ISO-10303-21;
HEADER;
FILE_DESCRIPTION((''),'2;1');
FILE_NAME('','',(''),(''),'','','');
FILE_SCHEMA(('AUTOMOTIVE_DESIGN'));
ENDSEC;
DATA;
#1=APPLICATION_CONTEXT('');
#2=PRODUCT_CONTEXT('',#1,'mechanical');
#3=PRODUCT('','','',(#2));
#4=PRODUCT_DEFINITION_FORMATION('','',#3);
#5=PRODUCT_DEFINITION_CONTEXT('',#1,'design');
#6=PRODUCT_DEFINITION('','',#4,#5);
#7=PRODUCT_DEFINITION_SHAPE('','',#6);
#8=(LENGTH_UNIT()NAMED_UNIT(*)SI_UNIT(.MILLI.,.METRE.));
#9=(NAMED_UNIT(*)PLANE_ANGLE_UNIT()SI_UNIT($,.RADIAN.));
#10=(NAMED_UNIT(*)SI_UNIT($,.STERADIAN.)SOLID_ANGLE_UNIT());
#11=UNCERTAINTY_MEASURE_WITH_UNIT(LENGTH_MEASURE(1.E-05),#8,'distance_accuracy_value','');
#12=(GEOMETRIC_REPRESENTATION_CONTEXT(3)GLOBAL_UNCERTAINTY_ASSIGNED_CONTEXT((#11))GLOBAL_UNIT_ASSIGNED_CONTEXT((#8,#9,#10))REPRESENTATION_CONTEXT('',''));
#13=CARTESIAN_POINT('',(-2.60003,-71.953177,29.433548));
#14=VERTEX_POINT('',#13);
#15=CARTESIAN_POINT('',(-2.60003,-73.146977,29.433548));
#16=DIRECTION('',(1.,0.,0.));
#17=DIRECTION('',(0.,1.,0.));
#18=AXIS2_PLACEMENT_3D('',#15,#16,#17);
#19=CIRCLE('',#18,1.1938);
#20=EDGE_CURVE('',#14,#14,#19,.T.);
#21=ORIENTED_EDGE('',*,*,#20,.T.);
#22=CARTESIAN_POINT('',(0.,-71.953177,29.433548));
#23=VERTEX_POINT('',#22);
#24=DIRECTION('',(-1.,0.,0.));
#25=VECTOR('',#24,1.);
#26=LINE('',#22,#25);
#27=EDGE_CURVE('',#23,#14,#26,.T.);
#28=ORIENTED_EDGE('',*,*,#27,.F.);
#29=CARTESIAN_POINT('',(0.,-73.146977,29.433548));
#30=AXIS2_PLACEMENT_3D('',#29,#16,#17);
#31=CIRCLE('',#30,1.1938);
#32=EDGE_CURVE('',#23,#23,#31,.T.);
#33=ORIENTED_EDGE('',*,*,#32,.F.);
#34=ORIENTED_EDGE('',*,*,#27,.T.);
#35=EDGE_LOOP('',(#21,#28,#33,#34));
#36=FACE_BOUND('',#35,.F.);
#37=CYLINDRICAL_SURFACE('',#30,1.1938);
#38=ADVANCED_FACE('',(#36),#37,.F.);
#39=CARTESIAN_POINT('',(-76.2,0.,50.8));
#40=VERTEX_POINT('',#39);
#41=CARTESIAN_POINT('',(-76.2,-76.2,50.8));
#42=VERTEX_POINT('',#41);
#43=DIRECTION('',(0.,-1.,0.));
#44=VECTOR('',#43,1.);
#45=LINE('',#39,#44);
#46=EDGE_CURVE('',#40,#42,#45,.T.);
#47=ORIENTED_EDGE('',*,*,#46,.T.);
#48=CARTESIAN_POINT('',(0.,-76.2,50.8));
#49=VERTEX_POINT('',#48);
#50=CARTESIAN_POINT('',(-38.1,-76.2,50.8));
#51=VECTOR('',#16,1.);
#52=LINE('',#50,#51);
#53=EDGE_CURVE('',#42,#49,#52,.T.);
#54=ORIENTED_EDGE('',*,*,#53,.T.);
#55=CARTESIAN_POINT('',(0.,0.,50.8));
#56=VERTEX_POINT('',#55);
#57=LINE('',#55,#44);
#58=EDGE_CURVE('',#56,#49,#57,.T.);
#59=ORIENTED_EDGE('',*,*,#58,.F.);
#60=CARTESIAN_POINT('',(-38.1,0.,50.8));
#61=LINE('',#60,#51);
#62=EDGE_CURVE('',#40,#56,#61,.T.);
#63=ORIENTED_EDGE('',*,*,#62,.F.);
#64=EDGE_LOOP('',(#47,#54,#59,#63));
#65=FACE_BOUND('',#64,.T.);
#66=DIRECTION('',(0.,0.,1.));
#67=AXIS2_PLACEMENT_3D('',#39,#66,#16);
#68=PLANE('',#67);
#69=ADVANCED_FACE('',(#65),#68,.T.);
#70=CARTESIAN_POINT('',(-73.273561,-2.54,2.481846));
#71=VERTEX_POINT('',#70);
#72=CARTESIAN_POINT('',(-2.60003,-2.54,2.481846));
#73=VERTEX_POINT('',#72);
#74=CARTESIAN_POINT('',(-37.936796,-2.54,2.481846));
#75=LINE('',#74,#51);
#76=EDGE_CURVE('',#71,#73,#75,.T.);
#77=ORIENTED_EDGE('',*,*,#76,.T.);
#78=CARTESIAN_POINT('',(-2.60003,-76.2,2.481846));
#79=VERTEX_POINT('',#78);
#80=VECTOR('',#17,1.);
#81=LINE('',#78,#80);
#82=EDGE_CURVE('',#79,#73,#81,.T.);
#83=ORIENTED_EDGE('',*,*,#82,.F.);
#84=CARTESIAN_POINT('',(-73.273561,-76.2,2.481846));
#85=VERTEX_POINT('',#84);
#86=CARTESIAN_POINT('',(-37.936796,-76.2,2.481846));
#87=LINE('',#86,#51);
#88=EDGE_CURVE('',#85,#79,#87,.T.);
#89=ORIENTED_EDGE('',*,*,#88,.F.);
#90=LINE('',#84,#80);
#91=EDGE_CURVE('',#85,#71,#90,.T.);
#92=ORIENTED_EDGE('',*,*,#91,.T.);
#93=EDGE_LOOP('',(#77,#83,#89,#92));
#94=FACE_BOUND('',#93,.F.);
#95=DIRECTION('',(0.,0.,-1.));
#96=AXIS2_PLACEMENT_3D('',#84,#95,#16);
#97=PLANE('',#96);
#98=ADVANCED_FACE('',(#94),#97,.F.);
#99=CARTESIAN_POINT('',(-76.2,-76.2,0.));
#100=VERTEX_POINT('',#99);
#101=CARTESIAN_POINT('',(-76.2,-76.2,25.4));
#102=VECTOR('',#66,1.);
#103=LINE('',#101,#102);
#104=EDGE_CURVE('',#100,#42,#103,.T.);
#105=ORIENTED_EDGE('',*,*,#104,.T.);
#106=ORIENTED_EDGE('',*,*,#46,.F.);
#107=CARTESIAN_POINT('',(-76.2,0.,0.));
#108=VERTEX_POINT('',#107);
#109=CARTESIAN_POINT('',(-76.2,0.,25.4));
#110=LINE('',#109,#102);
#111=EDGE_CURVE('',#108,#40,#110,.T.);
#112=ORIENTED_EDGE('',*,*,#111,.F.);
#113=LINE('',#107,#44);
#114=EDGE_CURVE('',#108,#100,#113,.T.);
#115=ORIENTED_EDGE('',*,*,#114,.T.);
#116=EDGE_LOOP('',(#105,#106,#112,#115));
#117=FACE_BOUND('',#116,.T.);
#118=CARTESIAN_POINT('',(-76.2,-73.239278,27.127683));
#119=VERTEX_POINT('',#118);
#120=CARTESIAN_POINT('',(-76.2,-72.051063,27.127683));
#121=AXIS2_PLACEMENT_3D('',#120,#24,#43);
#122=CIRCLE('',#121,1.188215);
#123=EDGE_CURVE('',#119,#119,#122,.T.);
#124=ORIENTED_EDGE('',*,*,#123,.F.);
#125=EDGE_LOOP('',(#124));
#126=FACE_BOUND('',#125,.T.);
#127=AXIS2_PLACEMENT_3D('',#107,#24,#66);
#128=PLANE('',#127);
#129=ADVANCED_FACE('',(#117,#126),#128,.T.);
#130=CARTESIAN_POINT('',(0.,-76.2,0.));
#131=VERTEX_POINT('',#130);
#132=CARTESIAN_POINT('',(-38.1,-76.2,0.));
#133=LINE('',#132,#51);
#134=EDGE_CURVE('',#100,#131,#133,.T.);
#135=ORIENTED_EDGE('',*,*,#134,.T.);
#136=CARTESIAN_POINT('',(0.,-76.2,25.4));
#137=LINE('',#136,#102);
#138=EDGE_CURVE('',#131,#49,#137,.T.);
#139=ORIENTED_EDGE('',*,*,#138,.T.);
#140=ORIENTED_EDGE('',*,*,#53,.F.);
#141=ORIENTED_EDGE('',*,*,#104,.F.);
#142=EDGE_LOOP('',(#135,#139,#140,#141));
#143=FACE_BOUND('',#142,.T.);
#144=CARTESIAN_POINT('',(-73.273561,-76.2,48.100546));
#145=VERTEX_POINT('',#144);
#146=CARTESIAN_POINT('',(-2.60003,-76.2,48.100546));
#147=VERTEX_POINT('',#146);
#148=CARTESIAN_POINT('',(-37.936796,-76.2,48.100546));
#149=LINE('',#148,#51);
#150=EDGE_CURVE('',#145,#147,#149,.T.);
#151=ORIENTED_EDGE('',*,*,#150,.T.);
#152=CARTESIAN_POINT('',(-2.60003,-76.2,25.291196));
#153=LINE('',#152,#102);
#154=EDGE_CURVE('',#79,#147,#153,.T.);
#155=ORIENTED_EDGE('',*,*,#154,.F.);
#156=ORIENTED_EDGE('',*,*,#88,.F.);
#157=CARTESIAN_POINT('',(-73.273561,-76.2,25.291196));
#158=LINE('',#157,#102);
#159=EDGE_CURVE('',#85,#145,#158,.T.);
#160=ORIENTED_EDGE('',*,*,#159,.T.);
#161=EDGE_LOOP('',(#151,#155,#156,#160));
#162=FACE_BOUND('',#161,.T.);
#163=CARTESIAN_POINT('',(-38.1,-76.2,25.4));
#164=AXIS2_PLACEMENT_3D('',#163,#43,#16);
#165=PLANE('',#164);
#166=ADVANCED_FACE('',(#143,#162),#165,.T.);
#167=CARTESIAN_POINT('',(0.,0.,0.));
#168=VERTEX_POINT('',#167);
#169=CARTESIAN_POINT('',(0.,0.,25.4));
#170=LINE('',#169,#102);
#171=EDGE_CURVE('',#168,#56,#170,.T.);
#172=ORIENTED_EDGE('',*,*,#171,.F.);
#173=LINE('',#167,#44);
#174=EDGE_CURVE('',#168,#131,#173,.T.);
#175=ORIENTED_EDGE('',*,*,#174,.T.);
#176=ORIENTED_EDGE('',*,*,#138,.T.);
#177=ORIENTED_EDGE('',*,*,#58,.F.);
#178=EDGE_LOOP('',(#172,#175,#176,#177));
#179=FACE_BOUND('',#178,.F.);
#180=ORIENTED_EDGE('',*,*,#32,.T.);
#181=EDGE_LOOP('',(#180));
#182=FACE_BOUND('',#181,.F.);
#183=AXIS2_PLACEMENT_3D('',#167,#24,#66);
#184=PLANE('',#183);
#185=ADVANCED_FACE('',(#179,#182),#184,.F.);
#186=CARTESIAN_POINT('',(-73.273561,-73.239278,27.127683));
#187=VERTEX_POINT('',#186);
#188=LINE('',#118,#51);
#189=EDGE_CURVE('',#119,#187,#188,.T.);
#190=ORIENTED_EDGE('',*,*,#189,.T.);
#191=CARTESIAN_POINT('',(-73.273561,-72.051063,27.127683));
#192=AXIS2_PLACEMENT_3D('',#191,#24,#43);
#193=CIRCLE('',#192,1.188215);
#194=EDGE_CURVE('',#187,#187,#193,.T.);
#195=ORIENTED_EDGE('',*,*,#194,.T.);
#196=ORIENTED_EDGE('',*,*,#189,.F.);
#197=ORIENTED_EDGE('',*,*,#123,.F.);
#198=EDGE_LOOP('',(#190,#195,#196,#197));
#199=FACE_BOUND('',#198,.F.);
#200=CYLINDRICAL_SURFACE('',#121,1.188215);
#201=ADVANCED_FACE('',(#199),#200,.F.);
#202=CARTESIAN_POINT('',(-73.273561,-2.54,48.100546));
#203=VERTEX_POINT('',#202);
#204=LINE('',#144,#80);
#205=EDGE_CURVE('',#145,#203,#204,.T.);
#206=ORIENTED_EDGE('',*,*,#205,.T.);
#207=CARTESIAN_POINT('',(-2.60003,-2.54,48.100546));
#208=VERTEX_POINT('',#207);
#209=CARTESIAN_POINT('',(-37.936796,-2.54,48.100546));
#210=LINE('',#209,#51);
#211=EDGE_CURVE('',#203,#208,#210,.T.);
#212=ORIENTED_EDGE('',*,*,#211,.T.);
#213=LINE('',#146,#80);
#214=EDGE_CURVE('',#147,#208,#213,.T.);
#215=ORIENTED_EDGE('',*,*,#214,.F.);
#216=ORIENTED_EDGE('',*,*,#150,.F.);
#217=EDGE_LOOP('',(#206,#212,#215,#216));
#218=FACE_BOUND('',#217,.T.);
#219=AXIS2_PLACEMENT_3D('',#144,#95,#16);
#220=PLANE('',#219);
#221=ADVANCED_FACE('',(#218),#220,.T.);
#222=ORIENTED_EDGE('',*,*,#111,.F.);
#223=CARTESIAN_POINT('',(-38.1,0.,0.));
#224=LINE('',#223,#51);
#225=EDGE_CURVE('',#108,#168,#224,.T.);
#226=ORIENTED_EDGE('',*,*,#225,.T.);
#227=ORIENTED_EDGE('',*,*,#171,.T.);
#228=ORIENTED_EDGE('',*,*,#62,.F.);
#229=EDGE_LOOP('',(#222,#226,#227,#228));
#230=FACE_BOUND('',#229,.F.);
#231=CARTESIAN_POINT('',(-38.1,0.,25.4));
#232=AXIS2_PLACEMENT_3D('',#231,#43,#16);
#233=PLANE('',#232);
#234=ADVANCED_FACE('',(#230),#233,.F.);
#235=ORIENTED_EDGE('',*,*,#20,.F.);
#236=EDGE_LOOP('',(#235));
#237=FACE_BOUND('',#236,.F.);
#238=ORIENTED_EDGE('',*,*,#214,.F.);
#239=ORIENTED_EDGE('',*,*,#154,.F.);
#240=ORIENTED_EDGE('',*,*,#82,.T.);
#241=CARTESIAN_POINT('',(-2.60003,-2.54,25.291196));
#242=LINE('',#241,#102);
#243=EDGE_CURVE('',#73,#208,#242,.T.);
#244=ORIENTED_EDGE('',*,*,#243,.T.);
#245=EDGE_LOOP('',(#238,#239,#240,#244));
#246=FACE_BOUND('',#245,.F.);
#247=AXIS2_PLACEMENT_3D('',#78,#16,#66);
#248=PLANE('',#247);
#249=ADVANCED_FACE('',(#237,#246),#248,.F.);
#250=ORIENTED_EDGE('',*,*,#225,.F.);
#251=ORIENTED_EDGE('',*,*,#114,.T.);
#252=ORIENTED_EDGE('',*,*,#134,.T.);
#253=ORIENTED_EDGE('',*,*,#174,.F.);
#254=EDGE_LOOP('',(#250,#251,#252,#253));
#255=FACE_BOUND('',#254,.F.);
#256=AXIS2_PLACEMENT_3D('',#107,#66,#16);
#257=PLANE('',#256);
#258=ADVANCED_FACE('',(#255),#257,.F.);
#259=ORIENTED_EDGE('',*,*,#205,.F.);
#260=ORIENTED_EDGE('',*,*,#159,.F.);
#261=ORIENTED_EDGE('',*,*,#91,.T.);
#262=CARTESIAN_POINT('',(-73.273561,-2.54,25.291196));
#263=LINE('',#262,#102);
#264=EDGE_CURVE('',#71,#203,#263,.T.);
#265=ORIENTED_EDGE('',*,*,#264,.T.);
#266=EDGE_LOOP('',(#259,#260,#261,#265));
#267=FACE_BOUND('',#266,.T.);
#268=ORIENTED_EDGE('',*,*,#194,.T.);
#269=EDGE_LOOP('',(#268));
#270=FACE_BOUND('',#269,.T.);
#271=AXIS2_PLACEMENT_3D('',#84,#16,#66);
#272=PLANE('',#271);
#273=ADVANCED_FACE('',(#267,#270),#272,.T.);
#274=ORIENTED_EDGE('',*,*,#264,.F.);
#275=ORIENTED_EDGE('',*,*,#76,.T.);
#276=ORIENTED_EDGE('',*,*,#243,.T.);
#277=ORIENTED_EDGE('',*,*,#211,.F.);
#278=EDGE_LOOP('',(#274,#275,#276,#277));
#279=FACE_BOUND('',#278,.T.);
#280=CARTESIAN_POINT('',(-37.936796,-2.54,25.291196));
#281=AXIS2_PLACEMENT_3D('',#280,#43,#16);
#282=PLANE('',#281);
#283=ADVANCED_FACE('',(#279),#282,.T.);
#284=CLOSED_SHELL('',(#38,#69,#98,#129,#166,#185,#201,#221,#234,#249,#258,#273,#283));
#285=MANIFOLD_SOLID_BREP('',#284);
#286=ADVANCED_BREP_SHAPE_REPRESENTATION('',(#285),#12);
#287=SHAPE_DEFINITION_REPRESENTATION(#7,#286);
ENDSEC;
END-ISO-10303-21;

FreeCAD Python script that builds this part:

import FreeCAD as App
import Part
import Sketcher

V = App.Vector
Q = App.Units.Quantity


def add_polygon(sketch, points):
    """Adds a closed chain of lines whose ends are joined by coincident constraints."""
    first, n = sketch.GeometryCount, len(points)
    for a, b in zip(points, points[1:] + points[:1]):
        sketch.addGeometry(Part.LineSegment(App.Vector(*a, 0), App.Vector(*b, 0)), False)
    for i in range(n):
        sketch.addConstraint(Sketcher.Constraint("Coincident", first + i, 2, first + (i + 1) % n, 1))

doc = App.newDocument("Part")
body = doc.addObject("PartDesign::Body", "Body")

# Sketch on XZ plane
sketch1 = body.newObject("Sketcher::SketchObject", "Sketch")
sketch1.AttachmentSupport = (doc.getObject("XZ_Plane"), [""])
sketch1.MapMode = "FlatFace"
add_polygon(sketch1, [(-76, 51), (-76, 0), (0, 0), (0, 51)])  # lines 0-3
sketch1.addConstraint([
    Sketcher.Constraint("Vertical", 0),
    Sketcher.Constraint("Horizontal", 1),
    Sketcher.Constraint("Vertical", 2),
    Sketcher.Constraint("Horizontal", 3),
    Sketcher.Constraint("Coincident", 1, 2, -1, 1),
    Sketcher.Constraint("DistanceX", 1, 1, 1, 2, Q("3 in")),
    Sketcher.Constraint("DistanceY", 0, 2, 0, 1, Q("2 in")),
])
pad1 = body.newObject("PartDesign::Pad", "Pad")
pad1.Profile = sketch1
pad1.Length = Q("3 in")

# Sketch on XZ plane
sketch2 = body.newObject("Sketcher::SketchObject", "Sketch001")
sketch2.AttachmentSupport = (doc.getObject("XZ_Plane"), [""])
sketch2.MapMode = "FlatFace"
sketch2.AttachmentOffset = App.Placement(V(0, 0, 3 * 25.4), App.Rotation())
add_polygon(sketch2, [(-73, 48), (-73, 2), (-3, 2), (-3, 48)])  # lines 0-3
sketch2.addConstraint([
    Sketcher.Constraint("Vertical", 0),
    Sketcher.Constraint("Horizontal", 1),
    Sketcher.Constraint("Vertical", 2),
    Sketcher.Constraint("Horizontal", 3),
    Sketcher.Constraint("DistanceY", 0, 2, 0, 1, Q("45.6187 mm")),
    Sketcher.Constraint("DistanceX", 1, 1, 1, 2, Q("70.673531 mm")),
    Sketcher.Constraint("DistanceX", 0, 2, -1, 1, Q("73.273561 mm")),
    Sketcher.Constraint("DistanceY", -1, 1, 0, 2, Q("2.481846 mm")),
])
pocket1 = body.newObject("PartDesign::Pocket", "Pocket")
pocket1.Profile = sketch2
pocket1.Length = Q("2.9 in")

# Sketch on YZ plane
sketch3 = body.newObject("Sketcher::SketchObject", "Sketch002")
sketch3.AttachmentSupport = (doc.getObject("YZ_Plane"), [""])
sketch3.MapMode = "FlatFace"
sketch3.AttachmentOffset = App.Placement(V(0, 0, -3 * 25.4), App.Rotation())
sketch3.addGeometry(Part.Circle(V(-72.1, 27.1, 0), V(0, 0, 1), 1.2), False)
sketch3.addConstraint([
    Sketcher.Constraint("Diameter", 0, Q("2.37643 mm")),
    Sketcher.Constraint("DistanceX", 0, 3, -1, 1, Q("72.051063 mm")),
    Sketcher.Constraint("DistanceY", -1, 1, 0, 3, Q("27.127683 mm")),
])
pocket2 = body.newObject("PartDesign::Pocket", "Pocket001")
pocket2.Profile = sketch3
pocket2.Length = Q("0.2 in")
pocket2.Reversed = True

# Sketch on YZ plane
sketch4 = body.newObject("Sketcher::SketchObject", "Sketch003")
sketch4.AttachmentSupport = (doc.getObject("YZ_Plane"), [""])
sketch4.MapMode = "FlatFace"
sketch4.addGeometry(Part.Circle(V(-73.1, 29.4, 0), V(0, 0, 1), 1.2), False)
sketch4.addConstraint([
    Sketcher.Constraint("Diameter", 0, Q("0.094 in")),
    Sketcher.Constraint("DistanceX", 0, 3, -1, 1, Q("73.146977 mm")),
    Sketcher.Constraint("DistanceY", -1, 1, 0, 3, Q("29.433548 mm")),
])
pocket3 = body.newObject("PartDesign::Pocket", "Pocket002")
pocket3.Profile = sketch4
pocket3.Length = Q("0.2 in")

doc.recompute()
